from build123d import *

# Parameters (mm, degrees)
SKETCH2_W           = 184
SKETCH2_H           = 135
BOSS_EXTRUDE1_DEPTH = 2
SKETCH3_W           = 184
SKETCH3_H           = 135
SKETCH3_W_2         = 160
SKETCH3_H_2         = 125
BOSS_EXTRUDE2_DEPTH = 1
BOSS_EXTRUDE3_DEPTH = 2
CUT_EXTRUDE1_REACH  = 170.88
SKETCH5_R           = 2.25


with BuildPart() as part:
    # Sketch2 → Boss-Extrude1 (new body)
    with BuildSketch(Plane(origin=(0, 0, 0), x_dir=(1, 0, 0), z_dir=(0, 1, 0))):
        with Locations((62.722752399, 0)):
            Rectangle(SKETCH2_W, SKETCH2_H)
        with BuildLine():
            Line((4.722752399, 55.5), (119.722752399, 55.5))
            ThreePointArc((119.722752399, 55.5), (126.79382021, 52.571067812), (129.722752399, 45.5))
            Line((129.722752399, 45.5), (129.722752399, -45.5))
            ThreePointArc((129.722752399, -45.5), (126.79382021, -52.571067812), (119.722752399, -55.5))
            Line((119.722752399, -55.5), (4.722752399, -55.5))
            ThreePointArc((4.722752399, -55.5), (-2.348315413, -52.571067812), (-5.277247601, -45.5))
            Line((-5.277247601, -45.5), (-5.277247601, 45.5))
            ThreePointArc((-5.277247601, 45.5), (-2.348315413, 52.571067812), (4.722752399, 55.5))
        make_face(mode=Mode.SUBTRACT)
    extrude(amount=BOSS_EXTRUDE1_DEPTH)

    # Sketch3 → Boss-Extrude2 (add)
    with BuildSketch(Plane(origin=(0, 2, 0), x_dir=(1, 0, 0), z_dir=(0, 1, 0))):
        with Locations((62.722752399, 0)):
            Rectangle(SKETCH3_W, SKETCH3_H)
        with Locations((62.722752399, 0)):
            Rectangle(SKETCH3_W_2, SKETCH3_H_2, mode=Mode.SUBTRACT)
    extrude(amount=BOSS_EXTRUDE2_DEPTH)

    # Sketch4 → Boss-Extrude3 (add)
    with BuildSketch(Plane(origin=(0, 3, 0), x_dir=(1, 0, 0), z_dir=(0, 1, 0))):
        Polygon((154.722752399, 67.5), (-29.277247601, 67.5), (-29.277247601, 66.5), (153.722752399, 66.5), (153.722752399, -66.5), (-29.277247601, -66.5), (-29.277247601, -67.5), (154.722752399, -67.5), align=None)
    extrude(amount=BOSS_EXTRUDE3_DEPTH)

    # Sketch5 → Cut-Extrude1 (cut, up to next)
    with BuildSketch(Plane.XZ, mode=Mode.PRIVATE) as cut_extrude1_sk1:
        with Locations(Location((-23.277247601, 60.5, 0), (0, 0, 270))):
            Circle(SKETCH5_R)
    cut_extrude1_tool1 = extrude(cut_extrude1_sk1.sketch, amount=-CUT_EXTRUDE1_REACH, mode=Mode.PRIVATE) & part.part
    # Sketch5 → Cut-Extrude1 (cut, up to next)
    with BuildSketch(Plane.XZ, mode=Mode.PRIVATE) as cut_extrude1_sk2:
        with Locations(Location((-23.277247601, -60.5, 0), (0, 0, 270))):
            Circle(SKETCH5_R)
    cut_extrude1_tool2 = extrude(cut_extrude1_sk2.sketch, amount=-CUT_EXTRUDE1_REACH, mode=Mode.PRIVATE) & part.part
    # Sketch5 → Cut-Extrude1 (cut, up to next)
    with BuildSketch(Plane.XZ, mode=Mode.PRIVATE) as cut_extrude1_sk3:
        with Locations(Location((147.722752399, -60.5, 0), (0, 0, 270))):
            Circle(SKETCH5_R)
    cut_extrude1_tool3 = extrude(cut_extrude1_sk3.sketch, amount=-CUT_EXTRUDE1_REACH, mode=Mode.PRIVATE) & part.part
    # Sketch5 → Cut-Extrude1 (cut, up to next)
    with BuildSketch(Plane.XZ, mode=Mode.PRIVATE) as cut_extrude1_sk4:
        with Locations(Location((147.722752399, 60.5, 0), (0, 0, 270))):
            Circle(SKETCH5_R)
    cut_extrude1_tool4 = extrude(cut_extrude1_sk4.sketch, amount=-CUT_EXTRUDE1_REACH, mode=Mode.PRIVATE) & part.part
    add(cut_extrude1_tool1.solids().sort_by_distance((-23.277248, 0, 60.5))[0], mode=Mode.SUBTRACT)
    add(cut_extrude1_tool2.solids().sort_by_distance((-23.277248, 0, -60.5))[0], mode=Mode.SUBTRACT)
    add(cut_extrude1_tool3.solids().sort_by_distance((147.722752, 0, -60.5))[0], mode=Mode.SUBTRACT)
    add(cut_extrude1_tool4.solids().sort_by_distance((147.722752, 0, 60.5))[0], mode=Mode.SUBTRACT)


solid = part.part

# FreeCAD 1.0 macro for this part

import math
import FreeCAD as App
import Part
import Sketcher
from FreeCAD import Vector

doc = App.newDocument("Part")
body = doc.addObject("PartDesign::Body", "Body")

# Sketch on XZ plane
sketch1 = body.newObject("Sketcher::SketchObject", "Sketch")
sketch1.AttachmentSupport = (doc.getObject("XZ_Plane"), [""])
sketch1.MapMode = "FlatFace"
sketch1.addGeometry([
    Part.LineSegment(Vector(-29, -68, 0), Vector(-29, 68, 0)),  # 0
    Part.LineSegment(Vector(-29, 68, 0), Vector(155, 68, 0)),  # 1
    Part.LineSegment(Vector(155, 68, 0), Vector(155, -68, 0)),  # 2
    Part.LineSegment(Vector(155, -68, 0), Vector(-29, -68, 0)),  # 3
    Part.ArcOfCircle(Part.Circle(Vector(5, -46, 0), Vector(0, 0, 1), 10), math.radians(180), math.radians(270)),  # 4
    Part.LineSegment(Vector(5, -56, 0), Vector(120, -56, 0)),  # 5
    Part.ArcOfCircle(Part.Circle(Vector(120, -45, 0), Vector(0, 0, 1), 10), math.radians(-90), math.radians(0)),  # 6
    Part.LineSegment(Vector(130, -46, 0), Vector(130, 46, 0)),  # 7
    Part.ArcOfCircle(Part.Circle(Vector(120, 45, 0), Vector(0, 0, 1), 10), math.radians(0), math.radians(90)),  # 8
    Part.LineSegment(Vector(120, 56, 0), Vector(5, 56, 0)),  # 9
    Part.ArcOfCircle(Part.Circle(Vector(5, 46, 0), Vector(0, 0, 1), 10), math.radians(90), math.radians(180)),  # 10
    Part.LineSegment(Vector(-5, 46, 0), Vector(-5, -46, 0)),  # 11
], False)
sketch1.addConstraint([
    Sketcher.Constraint("Coincident", 0, 2, 1, 1),
    Sketcher.Constraint("Coincident", 1, 2, 2, 1),
    Sketcher.Constraint("Coincident", 2, 2, 3, 1),
    Sketcher.Constraint("Coincident", 3, 2, 0, 1),
    Sketcher.Constraint("Tangent", 4, 2, 5, 1),
    Sketcher.Constraint("Tangent", 5, 2, 6, 1),
    Sketcher.Constraint("Tangent", 6, 2, 7, 1),
    Sketcher.Constraint("Tangent", 7, 2, 8, 1),
    Sketcher.Constraint("Tangent", 8, 2, 9, 1),
    Sketcher.Constraint("Tangent", 9, 2, 10, 1),
    Sketcher.Constraint("Tangent", 10, 2, 11, 1),
    Sketcher.Constraint("Tangent", 11, 2, 4, 1),
    Sketcher.Constraint("Vertical", 0),
    Sketcher.Constraint("Horizontal", 1),
    Sketcher.Constraint("Vertical", 2),
    Sketcher.Constraint("Horizontal", 3),
    Sketcher.Constraint("Horizontal", 5),
    Sketcher.Constraint("Vertical", 7),
    Sketcher.Constraint("Horizontal", 9),
    Sketcher.Constraint("Vertical", 11),
    Sketcher.Constraint("Equal", 4, 6),
    Sketcher.Constraint("Equal", 6, 8),
    Sketcher.Constraint("Equal", 8, 10),
    Sketcher.Constraint("Radius", 4, 10.0),
    Sketcher.Constraint("DistanceX", 1, 1, 1, 2, 184.0),
    Sketcher.Constraint("DistanceX", 5, 1, 5, 2, 115.0),
    Sketcher.Constraint("DistanceY", 0, 1, 0, 2, 135.0),
    Sketcher.Constraint("DistanceY", 7, 1, 7, 2, 91.0),
    Sketcher.Constraint("DistanceX", 0, 2, 10, 3, 34.0),
    Sketcher.Constraint("DistanceY", 10, 3, 0, 2, 22.0),
    Sketcher.Constraint("DistanceY", 4, 3, -1, 1, 45.5),
    Sketcher.Constraint("DistanceX", -1, 1, 4, 3, 4.722752),
])
pad1 = body.newObject("PartDesign::Pad", "Pad")
pad1.Profile = sketch1
pad1.Length = 2
pad1.Reversed = True

# Sketch on XZ plane
sketch2 = body.newObject("Sketcher::SketchObject", "Sketch001")
sketch2.AttachmentSupport = (doc.getObject("XZ_Plane"), [""])
sketch2.MapMode = "FlatFace"
sketch2.AttachmentOffset = App.Placement(Vector(0, 0, -2), App.Rotation())
sketch2.addGeometry([
    Part.LineSegment(Vector(-29, -68, 0), Vector(-29, 68, 0)),  # 0
    Part.LineSegment(Vector(-29, 68, 0), Vector(155, 68, 0)),  # 1
    Part.LineSegment(Vector(155, 68, 0), Vector(155, -68, 0)),  # 2
    Part.LineSegment(Vector(155, -68, 0), Vector(-29, -68, 0)),  # 3
    Part.LineSegment(Vector(143, 62, 0), Vector(-17, 62, 0)),  # 4
    Part.LineSegment(Vector(-17, 62, 0), Vector(-17, -62, 0)),  # 5
    Part.LineSegment(Vector(-17, -62, 0), Vector(143, -62, 0)),  # 6
    Part.LineSegment(Vector(143, -62, 0), Vector(143, 62, 0)),  # 7
], False)
sketch2.addConstraint([
    Sketcher.Constraint("Coincident", 0, 2, 1, 1),
    Sketcher.Constraint("Coincident", 1, 2, 2, 1),
    Sketcher.Constraint("Coincident", 2, 2, 3, 1),
    Sketcher.Constraint("Coincident", 3, 2, 0, 1),
    Sketcher.Constraint("Coincident", 4, 2, 5, 1),
    Sketcher.Constraint("Coincident", 5, 2, 6, 1),
    Sketcher.Constraint("Coincident", 6, 2, 7, 1),
    Sketcher.Constraint("Coincident", 7, 2, 4, 1),
    Sketcher.Constraint("Vertical", 0),
    Sketcher.Constraint("Horizontal", 1),
    Sketcher.Constraint("Vertical", 2),
    Sketcher.Constraint("Horizontal", 3),
    Sketcher.Constraint("Horizontal", 4),
    Sketcher.Constraint("Vertical", 5),
    Sketcher.Constraint("Horizontal", 6),
    Sketcher.Constraint("Vertical", 7),
    Sketcher.Constraint("DistanceX", 1, 1, 1, 2, 184.0),
    Sketcher.Constraint("DistanceX", 4, 2, 4, 1, 160.0),
    Sketcher.Constraint("DistanceY", 0, 1, 0, 2, 135.0),
    Sketcher.Constraint("DistanceY", 5, 2, 5, 1, 125.0),
    Sketcher.Constraint("DistanceX", 0, 2, 4, 2, 12.0),
    Sketcher.Constraint("DistanceY", 4, 2, 0, 2, 5.0),
    Sketcher.Constraint("DistanceY", -1, 1, 0, 2, 67.5),
    Sketcher.Constraint("DistanceX", 0, 2, -1, 1, 29.277248),
])
pad2 = body.newObject("PartDesign::Pad", "Pad001")
pad2.Profile = sketch2
pad2.Length = 1
pad2.Reversed = True

# Sketch on XZ plane
sketch3 = body.newObject("Sketcher::SketchObject", "Sketch002")
sketch3.AttachmentSupport = (doc.getObject("XZ_Plane"), [""])
sketch3.MapMode = "FlatFace"
sketch3.AttachmentOffset = App.Placement(Vector(0, 0, -3), App.Rotation())
sketch3.addGeometry([
    Part.LineSegment(Vector(154.7, -67.5, 0), Vector(-29.3, -67.5, 0)),  # 0
    Part.LineSegment(Vector(-29.3, -67.5, 0), Vector(-29.3, -66.5, 0)),  # 1
    Part.LineSegment(Vector(-29.3, -66.5, 0), Vector(153.7, -66.5, 0)),  # 2
    Part.LineSegment(Vector(153.7, -66.5, 0), Vector(153.7, 66.5, 0)),  # 3
    Part.LineSegment(Vector(153.7, 66.5, 0), Vector(-29.3, 66.5, 0)),  # 4
    Part.LineSegment(Vector(-29.3, 66.5, 0), Vector(-29.3, 67.5, 0)),  # 5
    Part.LineSegment(Vector(-29.3, 67.5, 0), Vector(154.7, 67.5, 0)),  # 6
    Part.LineSegment(Vector(154.7, 67.5, 0), Vector(154.7, -67.5, 0)),  # 7
], False)
sketch3.addConstraint([
    Sketcher.Constraint("Coincident", 0, 2, 1, 1),
    Sketcher.Constraint("Coincident", 1, 2, 2, 1),
    Sketcher.Constraint("Coincident", 2, 2, 3, 1),
    Sketcher.Constraint("Coincident", 3, 2, 4, 1),
    Sketcher.Constraint("Coincident", 4, 2, 5, 1),
    Sketcher.Constraint("Coincident", 5, 2, 6, 1),
    Sketcher.Constraint("Coincident", 6, 2, 7, 1),
    Sketcher.Constraint("Coincident", 7, 2, 0, 1),
    Sketcher.Constraint("Horizontal", 0),
    Sketcher.Constraint("Vertical", 1),
    Sketcher.Constraint("Horizontal", 2),
    Sketcher.Constraint("Vertical", 3),
    Sketcher.Constraint("Horizontal", 4),
    Sketcher.Constraint("Vertical", 5),
    Sketcher.Constraint("Horizontal", 6),
    Sketcher.Constraint("Vertical", 7),
    Sketcher.Constraint("Symmetric", 1, 2, 4, 2, -1),
    Sketcher.Constraint("Equal", 1, 5),
    Sketcher.Constraint("DistanceX", 0, 2, 0, 1, 184.0),
    Sketcher.Constraint("DistanceX", 2, 1, 2, 2, 183.0),
    Sketcher.Constraint("DistanceY", 1, 1, 1, 2, 1.0),
    Sketcher.Constraint("DistanceY", 3, 1, 3, 2, 133.0),
    Sketcher.Constraint("DistanceX", 0, 2, -1, 1, 29.277248),
])
pad3 = body.newObject("PartDesign::Pad", "Pad002")
pad3.Profile = sketch3
pad3.Length = 2
pad3.Reversed = True

# Sketch on XZ plane
sketch4 = body.newObject("Sketcher::SketchObject", "Sketch003")
sketch4.AttachmentSupport = (doc.getObject("XZ_Plane"), [""])
sketch4.MapMode = "FlatFace"
sketch4.addGeometry(Part.Circle(Vector(-23.3, 60.5, 0), Vector(0, 0, 1), 2.2), False)
sketch4.addConstraint([
    Sketcher.Constraint("Diameter", 0, 4.5),
    Sketcher.Constraint("DistanceY", -1, 1, 0, 3, 60.5),
    Sketcher.Constraint("DistanceX", 0, 3, -1, 1, 23.277248),
])
pocket1 = body.newObject("PartDesign::Pocket", "Pocket")
pocket1.Profile = sketch4
pocket1.Type = "UpToFirst"

# Sketch on XZ plane
sketch5 = body.newObject("Sketcher::SketchObject", "Sketch004")
sketch5.AttachmentSupport = (doc.getObject("XZ_Plane"), [""])
sketch5.MapMode = "FlatFace"
sketch5.addGeometry(Part.Circle(Vector(-23.3, -60.5, 0), Vector(0, 0, 1), 2.2), False)
sketch5.addConstraint([
    Sketcher.Constraint("Diameter", 0, 4.5),
    Sketcher.Constraint("DistanceY", 0, 3, -1, 1, 60.5),
    Sketcher.Constraint("DistanceX", 0, 3, -1, 1, 23.277248),
])
pocket2 = body.newObject("PartDesign::Pocket", "Pocket001")
pocket2.Profile = sketch5
pocket2.Type = "UpToFirst"

# Sketch on XZ plane
sketch6 = body.newObject("Sketcher::SketchObject", "Sketch005")
sketch6.AttachmentSupport = (doc.getObject("XZ_Plane"), [""])
sketch6.MapMode = "FlatFace"
sketch6.addGeometry(Part.Circle(Vector(147.7, -60.5, 0), Vector(0, 0, 1), 2.2), False)
sketch6.addConstraint([
    Sketcher.Constraint("Diameter", 0, 4.5),
    Sketcher.Constraint("DistanceY", 0, 3, -1, 1, 60.5),
    Sketcher.Constraint("DistanceX", -1, 1, 0, 3, 147.722752),
])
pocket3 = body.newObject("PartDesign::Pocket", "Pocket002")
pocket3.Profile = sketch6
pocket3.Type = "UpToFirst"

# Sketch on XZ plane
sketch7 = body.newObject("Sketcher::SketchObject", "Sketch006")
sketch7.AttachmentSupport = (doc.getObject("XZ_Plane"), [""])
sketch7.MapMode = "FlatFace"
sketch7.addGeometry(Part.Circle(Vector(147.7, 60.5, 0), Vector(0, 0, 1), 2.2), False)
sketch7.addConstraint([
    Sketcher.Constraint("Diameter", 0, 4.5),
    Sketcher.Constraint("DistanceY", -1, 1, 0, 3, 60.5),
    Sketcher.Constraint("DistanceX", -1, 1, 0, 3, 147.722752),
])
pocket4 = body.newObject("PartDesign::Pocket", "Pocket003")
pocket4.Profile = sketch7
pocket4.Type = "UpToFirst"

doc.recompute()
